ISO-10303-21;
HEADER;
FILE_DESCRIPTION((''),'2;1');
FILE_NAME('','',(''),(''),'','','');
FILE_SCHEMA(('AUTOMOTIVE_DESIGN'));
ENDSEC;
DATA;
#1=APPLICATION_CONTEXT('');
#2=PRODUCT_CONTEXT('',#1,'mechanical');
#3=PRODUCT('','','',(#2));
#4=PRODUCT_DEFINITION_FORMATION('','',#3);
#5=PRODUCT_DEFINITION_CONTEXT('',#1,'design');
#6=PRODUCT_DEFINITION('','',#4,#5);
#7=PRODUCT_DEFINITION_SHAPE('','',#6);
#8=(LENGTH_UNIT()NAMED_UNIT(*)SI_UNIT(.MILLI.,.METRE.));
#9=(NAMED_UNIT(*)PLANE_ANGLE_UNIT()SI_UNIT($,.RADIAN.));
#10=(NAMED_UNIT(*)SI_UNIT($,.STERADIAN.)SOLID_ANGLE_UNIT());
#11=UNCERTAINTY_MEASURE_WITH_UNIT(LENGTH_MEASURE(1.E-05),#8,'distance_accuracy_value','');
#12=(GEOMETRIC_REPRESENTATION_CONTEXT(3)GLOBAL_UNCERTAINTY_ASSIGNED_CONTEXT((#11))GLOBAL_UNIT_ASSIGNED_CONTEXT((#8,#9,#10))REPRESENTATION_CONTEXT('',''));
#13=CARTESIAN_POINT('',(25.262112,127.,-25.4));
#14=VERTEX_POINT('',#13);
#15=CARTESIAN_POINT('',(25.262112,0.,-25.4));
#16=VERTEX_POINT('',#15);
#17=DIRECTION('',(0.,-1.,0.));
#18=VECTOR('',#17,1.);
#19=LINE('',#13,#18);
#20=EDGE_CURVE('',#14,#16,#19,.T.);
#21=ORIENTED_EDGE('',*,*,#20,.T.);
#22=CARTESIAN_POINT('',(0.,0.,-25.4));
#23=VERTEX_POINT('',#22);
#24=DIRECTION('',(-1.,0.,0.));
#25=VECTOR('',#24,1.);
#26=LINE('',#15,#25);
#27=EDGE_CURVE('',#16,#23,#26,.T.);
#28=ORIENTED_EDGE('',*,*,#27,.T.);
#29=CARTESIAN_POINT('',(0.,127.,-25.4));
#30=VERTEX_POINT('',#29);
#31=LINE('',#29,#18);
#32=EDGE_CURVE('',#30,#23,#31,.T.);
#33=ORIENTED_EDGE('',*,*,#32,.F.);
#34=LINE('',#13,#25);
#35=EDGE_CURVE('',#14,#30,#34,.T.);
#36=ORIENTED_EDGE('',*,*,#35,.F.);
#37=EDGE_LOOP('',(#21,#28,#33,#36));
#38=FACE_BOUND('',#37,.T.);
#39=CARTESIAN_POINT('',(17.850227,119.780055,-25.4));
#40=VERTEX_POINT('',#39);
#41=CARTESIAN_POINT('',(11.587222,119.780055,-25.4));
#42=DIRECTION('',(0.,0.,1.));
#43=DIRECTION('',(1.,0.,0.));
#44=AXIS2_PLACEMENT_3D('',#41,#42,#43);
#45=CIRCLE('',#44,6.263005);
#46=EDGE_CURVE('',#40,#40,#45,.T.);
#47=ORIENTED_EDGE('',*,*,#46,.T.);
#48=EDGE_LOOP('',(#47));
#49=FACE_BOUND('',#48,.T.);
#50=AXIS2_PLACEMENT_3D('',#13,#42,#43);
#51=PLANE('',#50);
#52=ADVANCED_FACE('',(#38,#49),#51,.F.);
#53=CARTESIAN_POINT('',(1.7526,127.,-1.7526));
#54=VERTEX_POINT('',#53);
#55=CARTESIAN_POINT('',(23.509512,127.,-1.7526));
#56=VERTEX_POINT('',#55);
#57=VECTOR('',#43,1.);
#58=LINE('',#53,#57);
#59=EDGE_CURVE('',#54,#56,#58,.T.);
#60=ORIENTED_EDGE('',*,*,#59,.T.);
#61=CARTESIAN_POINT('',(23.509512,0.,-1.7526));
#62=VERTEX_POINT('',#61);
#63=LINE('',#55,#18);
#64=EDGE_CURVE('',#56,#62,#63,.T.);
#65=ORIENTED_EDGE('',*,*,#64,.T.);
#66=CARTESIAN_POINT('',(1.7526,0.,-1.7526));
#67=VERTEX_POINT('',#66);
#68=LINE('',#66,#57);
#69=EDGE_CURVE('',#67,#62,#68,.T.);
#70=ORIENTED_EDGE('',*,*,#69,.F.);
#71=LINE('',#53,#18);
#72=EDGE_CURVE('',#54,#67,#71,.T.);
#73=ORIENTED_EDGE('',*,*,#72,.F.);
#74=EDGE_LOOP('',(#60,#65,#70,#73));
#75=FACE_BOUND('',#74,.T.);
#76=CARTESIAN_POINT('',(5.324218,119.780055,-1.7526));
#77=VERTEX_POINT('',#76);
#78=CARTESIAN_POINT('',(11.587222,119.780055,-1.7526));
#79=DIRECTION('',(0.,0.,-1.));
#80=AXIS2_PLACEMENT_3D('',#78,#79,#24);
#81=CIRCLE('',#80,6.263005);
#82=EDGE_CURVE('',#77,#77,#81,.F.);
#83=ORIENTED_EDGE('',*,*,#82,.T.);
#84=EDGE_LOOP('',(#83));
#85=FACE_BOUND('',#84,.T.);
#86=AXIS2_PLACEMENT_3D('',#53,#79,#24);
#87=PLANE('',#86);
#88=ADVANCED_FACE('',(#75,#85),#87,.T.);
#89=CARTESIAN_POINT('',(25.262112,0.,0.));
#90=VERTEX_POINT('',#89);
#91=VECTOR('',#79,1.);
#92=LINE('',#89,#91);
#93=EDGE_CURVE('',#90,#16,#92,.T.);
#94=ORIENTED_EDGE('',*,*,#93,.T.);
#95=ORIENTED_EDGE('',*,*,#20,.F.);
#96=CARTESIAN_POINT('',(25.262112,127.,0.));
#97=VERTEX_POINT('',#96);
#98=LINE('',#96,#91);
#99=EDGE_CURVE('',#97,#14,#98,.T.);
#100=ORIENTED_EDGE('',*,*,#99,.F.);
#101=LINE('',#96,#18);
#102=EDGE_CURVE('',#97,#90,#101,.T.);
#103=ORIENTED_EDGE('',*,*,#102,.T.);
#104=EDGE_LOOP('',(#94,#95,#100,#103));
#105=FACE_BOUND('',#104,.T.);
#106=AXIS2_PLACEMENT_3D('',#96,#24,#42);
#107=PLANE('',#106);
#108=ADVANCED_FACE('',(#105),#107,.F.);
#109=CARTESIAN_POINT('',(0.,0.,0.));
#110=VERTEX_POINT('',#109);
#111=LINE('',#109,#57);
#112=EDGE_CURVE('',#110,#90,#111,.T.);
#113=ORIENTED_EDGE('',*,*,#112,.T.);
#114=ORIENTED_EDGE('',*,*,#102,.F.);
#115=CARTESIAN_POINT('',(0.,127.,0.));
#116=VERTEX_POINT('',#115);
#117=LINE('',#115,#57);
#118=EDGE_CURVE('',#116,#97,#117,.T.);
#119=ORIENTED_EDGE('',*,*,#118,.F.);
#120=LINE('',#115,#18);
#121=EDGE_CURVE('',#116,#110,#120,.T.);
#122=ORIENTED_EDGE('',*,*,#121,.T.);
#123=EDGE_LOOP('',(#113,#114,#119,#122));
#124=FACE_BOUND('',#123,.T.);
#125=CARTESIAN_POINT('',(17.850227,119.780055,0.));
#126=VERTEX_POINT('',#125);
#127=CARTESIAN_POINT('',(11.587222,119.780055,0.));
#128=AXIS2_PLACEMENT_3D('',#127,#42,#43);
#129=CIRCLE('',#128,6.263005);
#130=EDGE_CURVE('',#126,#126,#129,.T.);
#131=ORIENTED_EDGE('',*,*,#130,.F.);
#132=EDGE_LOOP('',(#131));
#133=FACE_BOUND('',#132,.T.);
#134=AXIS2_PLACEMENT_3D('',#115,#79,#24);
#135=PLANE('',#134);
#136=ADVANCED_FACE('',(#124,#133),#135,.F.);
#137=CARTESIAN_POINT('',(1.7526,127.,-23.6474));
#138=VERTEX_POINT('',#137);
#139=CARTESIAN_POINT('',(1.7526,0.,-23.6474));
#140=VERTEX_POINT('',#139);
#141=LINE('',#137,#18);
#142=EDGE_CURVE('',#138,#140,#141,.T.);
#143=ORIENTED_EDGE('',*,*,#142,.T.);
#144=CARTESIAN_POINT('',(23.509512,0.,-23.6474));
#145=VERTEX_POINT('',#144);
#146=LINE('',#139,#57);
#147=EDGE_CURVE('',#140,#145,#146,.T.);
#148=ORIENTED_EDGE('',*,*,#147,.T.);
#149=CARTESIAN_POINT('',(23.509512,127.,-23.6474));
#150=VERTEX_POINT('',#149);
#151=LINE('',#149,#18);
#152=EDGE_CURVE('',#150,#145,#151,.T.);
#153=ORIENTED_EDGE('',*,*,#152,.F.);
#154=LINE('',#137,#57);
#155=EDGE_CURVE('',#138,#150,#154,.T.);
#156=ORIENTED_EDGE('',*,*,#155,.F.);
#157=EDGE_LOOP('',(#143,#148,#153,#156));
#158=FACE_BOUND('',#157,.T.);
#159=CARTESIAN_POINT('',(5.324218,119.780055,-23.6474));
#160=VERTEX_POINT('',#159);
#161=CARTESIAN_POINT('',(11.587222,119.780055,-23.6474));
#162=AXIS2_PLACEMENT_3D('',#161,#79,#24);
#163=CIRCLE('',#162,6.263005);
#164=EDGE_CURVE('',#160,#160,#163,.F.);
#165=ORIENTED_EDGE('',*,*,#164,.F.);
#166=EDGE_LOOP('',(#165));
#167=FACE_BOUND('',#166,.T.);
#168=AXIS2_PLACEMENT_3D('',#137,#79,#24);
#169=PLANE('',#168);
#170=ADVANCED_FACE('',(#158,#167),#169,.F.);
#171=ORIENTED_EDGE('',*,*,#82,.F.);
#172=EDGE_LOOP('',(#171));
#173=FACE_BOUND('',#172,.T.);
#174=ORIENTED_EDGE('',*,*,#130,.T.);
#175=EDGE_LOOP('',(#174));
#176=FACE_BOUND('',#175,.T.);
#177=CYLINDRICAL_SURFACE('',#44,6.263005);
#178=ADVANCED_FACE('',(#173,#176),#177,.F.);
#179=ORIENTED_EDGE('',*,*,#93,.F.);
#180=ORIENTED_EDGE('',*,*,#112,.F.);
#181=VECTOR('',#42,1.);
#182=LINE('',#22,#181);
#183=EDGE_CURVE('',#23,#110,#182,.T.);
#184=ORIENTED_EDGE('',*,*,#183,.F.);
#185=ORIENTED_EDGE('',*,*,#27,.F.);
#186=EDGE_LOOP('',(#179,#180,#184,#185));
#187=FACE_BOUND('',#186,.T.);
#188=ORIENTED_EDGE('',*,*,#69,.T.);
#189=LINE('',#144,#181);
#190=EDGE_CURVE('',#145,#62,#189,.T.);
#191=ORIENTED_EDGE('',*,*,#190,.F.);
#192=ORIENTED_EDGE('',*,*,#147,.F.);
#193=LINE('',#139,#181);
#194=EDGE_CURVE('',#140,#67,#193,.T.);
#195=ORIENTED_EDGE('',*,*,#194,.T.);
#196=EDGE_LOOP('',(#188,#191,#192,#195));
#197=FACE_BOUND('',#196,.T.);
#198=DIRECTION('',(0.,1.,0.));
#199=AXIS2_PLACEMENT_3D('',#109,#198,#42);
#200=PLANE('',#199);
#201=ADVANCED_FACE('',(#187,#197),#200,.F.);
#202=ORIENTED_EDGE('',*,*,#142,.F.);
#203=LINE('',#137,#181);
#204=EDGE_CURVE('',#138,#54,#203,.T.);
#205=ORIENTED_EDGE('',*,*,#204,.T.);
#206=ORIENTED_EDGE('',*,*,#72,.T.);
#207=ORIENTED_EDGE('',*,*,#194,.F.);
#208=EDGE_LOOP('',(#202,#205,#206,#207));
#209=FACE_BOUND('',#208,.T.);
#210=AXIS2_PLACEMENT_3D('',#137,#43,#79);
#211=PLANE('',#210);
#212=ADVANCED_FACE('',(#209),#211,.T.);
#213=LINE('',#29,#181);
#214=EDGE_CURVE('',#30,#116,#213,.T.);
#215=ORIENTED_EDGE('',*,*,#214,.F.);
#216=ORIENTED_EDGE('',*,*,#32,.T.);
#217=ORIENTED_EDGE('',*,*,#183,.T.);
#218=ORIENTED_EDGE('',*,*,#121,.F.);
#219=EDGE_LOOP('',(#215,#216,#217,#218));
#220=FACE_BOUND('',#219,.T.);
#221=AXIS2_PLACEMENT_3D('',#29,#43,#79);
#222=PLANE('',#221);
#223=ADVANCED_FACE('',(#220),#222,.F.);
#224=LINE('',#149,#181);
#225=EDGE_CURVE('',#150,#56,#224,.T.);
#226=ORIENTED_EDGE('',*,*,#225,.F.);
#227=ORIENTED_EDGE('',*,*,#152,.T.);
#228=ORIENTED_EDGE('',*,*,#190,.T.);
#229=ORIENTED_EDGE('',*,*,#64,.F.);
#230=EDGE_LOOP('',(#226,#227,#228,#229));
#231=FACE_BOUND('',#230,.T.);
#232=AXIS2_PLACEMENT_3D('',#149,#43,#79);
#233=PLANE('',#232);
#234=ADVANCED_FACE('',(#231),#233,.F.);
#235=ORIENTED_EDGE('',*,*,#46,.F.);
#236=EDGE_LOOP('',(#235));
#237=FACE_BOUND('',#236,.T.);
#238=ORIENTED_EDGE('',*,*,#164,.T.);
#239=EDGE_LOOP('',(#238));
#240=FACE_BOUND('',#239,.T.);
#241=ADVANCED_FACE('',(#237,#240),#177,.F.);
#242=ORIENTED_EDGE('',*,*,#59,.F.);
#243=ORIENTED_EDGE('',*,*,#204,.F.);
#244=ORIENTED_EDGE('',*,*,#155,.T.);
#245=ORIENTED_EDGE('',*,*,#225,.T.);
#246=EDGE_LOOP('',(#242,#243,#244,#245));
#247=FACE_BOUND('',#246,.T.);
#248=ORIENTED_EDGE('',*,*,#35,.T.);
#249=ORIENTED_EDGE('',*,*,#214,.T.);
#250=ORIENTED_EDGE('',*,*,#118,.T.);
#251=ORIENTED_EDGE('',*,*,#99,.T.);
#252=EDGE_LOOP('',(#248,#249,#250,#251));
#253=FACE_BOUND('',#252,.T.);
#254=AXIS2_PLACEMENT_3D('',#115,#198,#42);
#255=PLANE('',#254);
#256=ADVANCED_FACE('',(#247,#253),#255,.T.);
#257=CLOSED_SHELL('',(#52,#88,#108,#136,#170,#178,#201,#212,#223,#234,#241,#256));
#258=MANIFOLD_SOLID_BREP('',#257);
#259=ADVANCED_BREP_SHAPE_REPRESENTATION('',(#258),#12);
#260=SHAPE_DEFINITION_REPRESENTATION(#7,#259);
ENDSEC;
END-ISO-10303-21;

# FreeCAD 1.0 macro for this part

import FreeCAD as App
import Part
import Sketcher

V = App.Vector
Q = App.Units.Quantity

doc = App.newDocument("Part")
body = doc.addObject("PartDesign::Body", "Body")

# Sketch on XZ plane
sketch1 = body.newObject("Sketcher::SketchObject", "Sketch")
sketch1.AttachmentSupport = (doc.getObject("XZ_Plane"), [""])
sketch1.MapMode = "FlatFace"
sketch1.addGeometry(Part.LineSegment(V(0, -25, 0), V(0, 0, 0)), False)
sketch1.addGeometry(Part.LineSegment(V(0, 0, 0), V(25, 0, 0)), False)
sketch1.addGeometry(Part.LineSegment(V(25, 0, 0), V(25, -25, 0)), False)
sketch1.addGeometry(Part.LineSegment(V(25, -25, 0), V(0, -25, 0)), False)
sketch1.addConstraint(Sketcher.Constraint("Coincident", 0, 2, 1, 1))
sketch1.addConstraint(Sketcher.Constraint("Coincident", 1, 2, 2, 1))
sketch1.addConstraint(Sketcher.Constraint("Coincident", 2, 2, 3, 1))
sketch1.addConstraint(Sketcher.Constraint("Coincident", 3, 2, 0, 1))
sketch1.addConstraint(Sketcher.Constraint("Vertical", 0))
sketch1.addConstraint(Sketcher.Constraint("Horizontal", 1))
sketch1.addConstraint(Sketcher.Constraint("Vertical", 2))
sketch1.addConstraint(Sketcher.Constraint("Horizontal", 3))
sketch1.addConstraint(Sketcher.Constraint("Coincident", 0, 2, -1, 1))
sketch1.addConstraint(Sketcher.Constraint("DistanceY", 0, 1, 0, 2, Q("1 in")))
sketch1.addConstraint(Sketcher.Constraint("DistanceX", 1, 1, 1, 2, 25.262112))
pad1 = body.newObject("PartDesign::Pad", "Pad")
pad1.Profile = sketch1
pad1.Length = Q("5 in")
pad1.Reversed = True

# Sketch on XY plane
sketch2 = body.newObject("Sketcher::SketchObject", "Sketch001")
sketch2.AttachmentSupport = (doc.getObject("XY_Plane"), [""])
sketch2.MapMode = "FlatFace"
sketch2.addGeometry(Part.Circle(V(12, 120, 0), V(0, 0, 1), 6), False)
sketch2.addConstraint(Sketcher.Constraint("Diameter", 0, 12.526009))
sketch2.addConstraint(Sketcher.Constraint("DistanceX", -1, 1, 0, 3, 11.587222))
sketch2.addConstraint(Sketcher.Constraint("DistanceY", -1, 1, 0, 3, 119.780055))
pocket1 = body.newObject("PartDesign::Pocket", "Pocket")
pocket1.Profile = sketch2
pocket1.Length = Q("1 in")

# Sketch on XZ plane
sketch3 = body.newObject("Sketcher::SketchObject", "Sketch002")
sketch3.AttachmentSupport = (doc.getObject("XZ_Plane"), [""])
sketch3.MapMode = "FlatFace"
sketch3.addGeometry(Part.LineSegment(V(24, -24, 0), V(24, -2, 0)), False)
sketch3.addGeometry(Part.LineSegment(V(24, -2, 0), V(2, -2, 0)), False)
sketch3.addGeometry(Part.LineSegment(V(2, -2, 0), V(2, -24, 0)), False)
sketch3.addGeometry(Part.LineSegment(V(2, -24, 0), V(24, -24, 0)), False)
sketch3.addConstraint(Sketcher.Constraint("Coincident", 0, 2, 1, 1))
sketch3.addConstraint(Sketcher.Constraint("Coincident", 1, 2, 2, 1))
sketch3.addConstraint(Sketcher.Constraint("Coincident", 2, 2, 3, 1))
sketch3.addConstraint(Sketcher.Constraint("Coincident", 3, 2, 0, 1))
sketch3.addConstraint(Sketcher.Constraint("Vertical", 0))
sketch3.addConstraint(Sketcher.Constraint("Horizontal", 1))
sketch3.addConstraint(Sketcher.Constraint("Vertical", 2))
sketch3.addConstraint(Sketcher.Constraint("Horizontal", 3))
sketch3.addConstraint(Sketcher.Constraint("DistanceY", 0, 1, 0, 2, Q("0.862 in")))
sketch3.addConstraint(Sketcher.Constraint("DistanceY", 0, 2, -1, 1, Q("0.069 in")))
sketch3.addConstraint(Sketcher.Constraint("DistanceX", -1, 1, 1, 2, Q("0.069 in")))
sketch3.addConstraint(Sketcher.Constraint("DistanceX", 1, 2, 1, 1, 21.756912))
pocket2 = body.newObject("PartDesign::Pocket", "Pocket001")
pocket2.Profile = sketch3
pocket2.Length = Q("5 in")

doc.recompute()
